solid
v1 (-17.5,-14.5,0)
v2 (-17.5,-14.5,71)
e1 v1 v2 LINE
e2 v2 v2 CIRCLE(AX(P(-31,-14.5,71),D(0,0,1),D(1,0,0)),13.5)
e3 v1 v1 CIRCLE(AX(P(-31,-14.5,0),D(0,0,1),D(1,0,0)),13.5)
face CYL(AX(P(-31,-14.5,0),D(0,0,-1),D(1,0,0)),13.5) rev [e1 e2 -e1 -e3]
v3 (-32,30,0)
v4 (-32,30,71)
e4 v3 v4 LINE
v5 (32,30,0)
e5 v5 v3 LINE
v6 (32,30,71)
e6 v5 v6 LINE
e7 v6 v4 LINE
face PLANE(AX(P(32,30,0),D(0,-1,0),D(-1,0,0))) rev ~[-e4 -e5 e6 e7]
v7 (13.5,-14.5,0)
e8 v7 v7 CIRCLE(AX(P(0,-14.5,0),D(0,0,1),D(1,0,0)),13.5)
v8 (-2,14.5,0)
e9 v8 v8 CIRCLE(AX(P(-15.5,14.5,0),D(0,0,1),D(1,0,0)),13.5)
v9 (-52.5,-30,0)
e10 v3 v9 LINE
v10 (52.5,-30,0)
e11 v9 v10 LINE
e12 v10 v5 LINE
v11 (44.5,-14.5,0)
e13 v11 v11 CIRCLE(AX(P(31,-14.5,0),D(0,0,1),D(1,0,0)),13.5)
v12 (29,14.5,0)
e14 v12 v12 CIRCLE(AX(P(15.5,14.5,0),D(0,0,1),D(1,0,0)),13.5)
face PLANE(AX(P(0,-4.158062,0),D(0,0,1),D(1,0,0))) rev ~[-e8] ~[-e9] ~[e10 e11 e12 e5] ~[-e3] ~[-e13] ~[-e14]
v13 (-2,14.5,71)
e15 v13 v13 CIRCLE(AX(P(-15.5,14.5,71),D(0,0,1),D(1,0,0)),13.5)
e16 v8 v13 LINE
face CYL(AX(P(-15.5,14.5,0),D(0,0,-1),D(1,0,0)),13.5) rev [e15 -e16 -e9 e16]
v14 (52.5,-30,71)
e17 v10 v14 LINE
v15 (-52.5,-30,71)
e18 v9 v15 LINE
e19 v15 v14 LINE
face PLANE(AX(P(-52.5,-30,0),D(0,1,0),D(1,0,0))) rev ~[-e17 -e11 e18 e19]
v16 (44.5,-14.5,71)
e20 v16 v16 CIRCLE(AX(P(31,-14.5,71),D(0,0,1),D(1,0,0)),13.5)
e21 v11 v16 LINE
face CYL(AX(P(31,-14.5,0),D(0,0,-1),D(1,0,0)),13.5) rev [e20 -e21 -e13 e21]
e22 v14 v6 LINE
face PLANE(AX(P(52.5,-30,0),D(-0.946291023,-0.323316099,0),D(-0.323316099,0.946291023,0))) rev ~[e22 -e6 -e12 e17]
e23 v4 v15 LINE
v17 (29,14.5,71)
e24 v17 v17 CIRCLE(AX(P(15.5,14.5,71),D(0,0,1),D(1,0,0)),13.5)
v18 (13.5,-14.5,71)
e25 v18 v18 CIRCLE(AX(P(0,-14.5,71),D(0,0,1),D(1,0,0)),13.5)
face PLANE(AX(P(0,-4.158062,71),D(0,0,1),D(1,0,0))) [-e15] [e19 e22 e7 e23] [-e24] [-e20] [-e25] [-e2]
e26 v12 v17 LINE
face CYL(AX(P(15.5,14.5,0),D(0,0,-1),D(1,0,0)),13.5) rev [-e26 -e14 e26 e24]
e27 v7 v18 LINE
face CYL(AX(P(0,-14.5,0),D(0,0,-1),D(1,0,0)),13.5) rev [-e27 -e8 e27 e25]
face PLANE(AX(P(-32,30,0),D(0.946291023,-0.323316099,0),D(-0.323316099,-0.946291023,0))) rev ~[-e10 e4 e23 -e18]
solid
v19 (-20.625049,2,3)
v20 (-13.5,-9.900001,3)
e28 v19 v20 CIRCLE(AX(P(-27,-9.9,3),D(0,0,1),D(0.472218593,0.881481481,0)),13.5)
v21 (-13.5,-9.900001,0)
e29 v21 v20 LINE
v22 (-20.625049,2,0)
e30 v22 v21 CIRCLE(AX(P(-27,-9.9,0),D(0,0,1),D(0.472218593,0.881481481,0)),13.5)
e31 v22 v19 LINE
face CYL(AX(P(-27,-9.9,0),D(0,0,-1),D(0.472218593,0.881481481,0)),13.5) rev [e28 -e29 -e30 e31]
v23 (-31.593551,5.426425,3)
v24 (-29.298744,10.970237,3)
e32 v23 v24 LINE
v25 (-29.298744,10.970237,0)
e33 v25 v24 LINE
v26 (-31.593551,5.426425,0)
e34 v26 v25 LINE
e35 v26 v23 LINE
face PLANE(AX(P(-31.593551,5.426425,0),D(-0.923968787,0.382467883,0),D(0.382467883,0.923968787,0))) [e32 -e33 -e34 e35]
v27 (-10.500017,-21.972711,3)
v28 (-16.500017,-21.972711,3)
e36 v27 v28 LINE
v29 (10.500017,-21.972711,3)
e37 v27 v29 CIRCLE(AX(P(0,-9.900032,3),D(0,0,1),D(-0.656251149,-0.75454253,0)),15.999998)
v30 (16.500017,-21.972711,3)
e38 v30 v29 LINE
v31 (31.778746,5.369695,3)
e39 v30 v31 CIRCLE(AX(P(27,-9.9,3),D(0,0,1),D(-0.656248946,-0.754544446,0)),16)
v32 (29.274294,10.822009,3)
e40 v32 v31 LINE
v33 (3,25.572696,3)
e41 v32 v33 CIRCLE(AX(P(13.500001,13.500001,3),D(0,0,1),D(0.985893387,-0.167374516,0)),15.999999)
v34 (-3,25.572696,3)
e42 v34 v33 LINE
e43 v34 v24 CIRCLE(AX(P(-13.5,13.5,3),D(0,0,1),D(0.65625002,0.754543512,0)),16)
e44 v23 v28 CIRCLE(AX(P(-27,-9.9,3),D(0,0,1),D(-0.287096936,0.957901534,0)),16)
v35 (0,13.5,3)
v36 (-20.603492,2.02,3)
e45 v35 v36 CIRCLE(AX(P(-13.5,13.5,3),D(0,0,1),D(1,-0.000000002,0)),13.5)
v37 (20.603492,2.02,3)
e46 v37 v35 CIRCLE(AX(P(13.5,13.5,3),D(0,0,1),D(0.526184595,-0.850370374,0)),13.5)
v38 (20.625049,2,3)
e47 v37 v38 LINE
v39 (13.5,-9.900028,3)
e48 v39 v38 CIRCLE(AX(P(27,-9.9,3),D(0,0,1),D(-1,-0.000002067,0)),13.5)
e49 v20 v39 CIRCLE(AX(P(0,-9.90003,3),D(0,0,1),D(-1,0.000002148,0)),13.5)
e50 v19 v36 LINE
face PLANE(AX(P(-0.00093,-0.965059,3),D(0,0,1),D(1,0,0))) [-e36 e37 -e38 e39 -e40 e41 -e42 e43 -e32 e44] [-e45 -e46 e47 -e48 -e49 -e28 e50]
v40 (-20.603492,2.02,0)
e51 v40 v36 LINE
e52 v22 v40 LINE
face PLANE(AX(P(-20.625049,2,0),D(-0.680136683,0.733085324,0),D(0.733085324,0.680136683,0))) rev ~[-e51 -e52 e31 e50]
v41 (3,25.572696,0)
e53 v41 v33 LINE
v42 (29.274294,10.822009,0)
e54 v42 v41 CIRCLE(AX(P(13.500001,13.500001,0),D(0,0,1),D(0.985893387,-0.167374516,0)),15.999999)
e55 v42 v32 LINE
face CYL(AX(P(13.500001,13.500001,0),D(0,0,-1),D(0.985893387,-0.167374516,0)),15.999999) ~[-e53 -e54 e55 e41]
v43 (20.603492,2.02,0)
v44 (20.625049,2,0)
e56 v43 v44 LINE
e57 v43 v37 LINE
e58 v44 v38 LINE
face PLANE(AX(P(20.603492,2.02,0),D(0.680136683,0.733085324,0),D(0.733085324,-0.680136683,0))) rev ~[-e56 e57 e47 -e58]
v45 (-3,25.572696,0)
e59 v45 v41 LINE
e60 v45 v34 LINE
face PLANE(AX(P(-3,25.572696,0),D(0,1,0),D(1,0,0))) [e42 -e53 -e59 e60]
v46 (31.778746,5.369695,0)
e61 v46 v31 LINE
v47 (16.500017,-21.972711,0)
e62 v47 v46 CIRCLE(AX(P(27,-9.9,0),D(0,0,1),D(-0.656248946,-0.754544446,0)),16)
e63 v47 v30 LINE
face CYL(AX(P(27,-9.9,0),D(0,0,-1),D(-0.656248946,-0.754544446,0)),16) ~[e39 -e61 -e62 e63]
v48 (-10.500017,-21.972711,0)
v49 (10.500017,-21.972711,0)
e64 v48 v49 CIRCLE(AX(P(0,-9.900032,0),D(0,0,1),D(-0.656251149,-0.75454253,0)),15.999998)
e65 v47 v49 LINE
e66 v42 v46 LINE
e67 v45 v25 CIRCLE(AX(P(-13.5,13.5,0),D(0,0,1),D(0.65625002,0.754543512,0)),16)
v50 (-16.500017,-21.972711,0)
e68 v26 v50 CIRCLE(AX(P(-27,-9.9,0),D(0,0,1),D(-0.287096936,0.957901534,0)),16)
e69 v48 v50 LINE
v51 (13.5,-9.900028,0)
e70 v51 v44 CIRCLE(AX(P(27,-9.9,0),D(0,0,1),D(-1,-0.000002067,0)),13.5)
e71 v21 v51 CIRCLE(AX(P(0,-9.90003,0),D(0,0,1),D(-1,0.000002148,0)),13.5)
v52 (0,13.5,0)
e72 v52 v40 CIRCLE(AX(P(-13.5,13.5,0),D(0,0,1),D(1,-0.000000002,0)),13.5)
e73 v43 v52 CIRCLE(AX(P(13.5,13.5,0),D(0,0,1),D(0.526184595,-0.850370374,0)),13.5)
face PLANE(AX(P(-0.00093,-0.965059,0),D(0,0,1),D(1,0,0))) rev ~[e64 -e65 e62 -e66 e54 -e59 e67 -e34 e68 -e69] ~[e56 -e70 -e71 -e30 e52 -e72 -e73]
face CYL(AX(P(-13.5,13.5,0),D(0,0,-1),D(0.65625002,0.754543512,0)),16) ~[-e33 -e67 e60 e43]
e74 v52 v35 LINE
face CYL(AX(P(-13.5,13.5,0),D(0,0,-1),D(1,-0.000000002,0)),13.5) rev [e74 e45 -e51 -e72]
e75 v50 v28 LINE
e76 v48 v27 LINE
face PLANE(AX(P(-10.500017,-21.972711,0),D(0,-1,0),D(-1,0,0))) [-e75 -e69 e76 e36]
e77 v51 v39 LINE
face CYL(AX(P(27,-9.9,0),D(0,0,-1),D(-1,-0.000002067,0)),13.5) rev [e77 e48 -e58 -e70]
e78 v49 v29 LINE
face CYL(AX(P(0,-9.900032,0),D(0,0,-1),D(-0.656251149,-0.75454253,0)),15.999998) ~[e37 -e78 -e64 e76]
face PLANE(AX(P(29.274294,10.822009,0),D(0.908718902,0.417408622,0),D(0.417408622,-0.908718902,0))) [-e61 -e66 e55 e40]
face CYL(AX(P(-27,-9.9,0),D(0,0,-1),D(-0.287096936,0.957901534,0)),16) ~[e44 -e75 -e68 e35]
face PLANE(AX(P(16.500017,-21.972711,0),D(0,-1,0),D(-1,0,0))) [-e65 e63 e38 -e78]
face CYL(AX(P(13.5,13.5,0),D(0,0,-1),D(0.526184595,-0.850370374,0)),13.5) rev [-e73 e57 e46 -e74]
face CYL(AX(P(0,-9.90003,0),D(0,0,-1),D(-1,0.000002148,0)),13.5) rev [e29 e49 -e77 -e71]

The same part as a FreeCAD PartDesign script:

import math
import FreeCAD as App
import Part
import Sketcher
from FreeCAD import Vector
Q = App.Units.Quantity


def add_polygon(sketch, points):
    """Adds a closed chain of lines whose ends are joined by coincident constraints."""
    first, n = sketch.GeometryCount, len(points)
    for a, b in zip(points, points[1:] + points[:1]):
        sketch.addGeometry(Part.LineSegment(App.Vector(*a, 0), App.Vector(*b, 0)), False)
    for i in range(n):
        sketch.addConstraint(Sketcher.Constraint("Coincident", first + i, 2, first + (i + 1) % n, 1))

doc = App.newDocument("Part")
body = doc.addObject("PartDesign::Body", "Body")

# Sketch on XY plane
sketch1 = body.newObject("Sketcher::SketchObject", "Sketch")
sketch1.AttachmentSupport = (doc.getObject("XY_Plane"), [""])
sketch1.MapMode = "FlatFace"
add_polygon(sketch1, [(-52, -30), (52, -30), (32, 30), (-32, 30)])  # lines 0-3
sketch1.addGeometry(Part.Circle(Vector(-31, -14, 0), Vector(0, 0, 1), 14), False)  # 4
sketch1.addGeometry(Part.Circle(Vector(0, -14, 0), Vector(0, 0, 1), 14), False)  # 5
sketch1.addGeometry(Part.Circle(Vector(31, -14, 0), Vector(0, 0, 1), 14), False)  # 6
sketch1.addGeometry(Part.Circle(Vector(-16, 14, 0), Vector(0, 0, 1), 14), False)  # 7
sketch1.addGeometry(Part.Circle(Vector(16, 14, 0), Vector(0, 0, 1), 14), False)  # 8
sketch1.addConstraint([
    Sketcher.Constraint("Horizontal", 0),
    Sketcher.Constraint("Horizontal", 2),
    Sketcher.Constraint("Equal", 4, 5),
    Sketcher.Constraint("Equal", 5, 6),
    Sketcher.Constraint("Equal", 6, 7),
    Sketcher.Constraint("Equal", 7, 8),
    Sketcher.Constraint("Symmetric", 4, 3, 6, 3, -2),
    Sketcher.Constraint("Symmetric", 7, 3, 8, 3, -2),
    Sketcher.Constraint("PointOnObject", 5, 3, -2),
    Sketcher.Constraint("Horizontal", 4, 3, 5, 3),
    Sketcher.Constraint("Equal", 1, 3),
    Sketcher.Constraint("Diameter", 4, Q("27 mm")),
    Sketcher.Constraint("DistanceX", 0, 1, 0, 2, Q("105 mm")),
    Sketcher.Constraint("DistanceX", 2, 2, 2, 1, Q("64 mm")),
    Sketcher.Constraint("DistanceX", 4, 3, -1, 1, Q("31 mm")),
    Sketcher.Constraint("DistanceY", 0, 2, -1, 1, Q("30 mm")),
    Sketcher.Constraint("DistanceX", -1, 1, 1, 2, Q("32 mm")),
    Sketcher.Constraint("DistanceY", -1, 1, 1, 2, Q("30 mm")),
    Sketcher.Constraint("DistanceY", 4, 3, 7, 3, Q("29 mm")),
    Sketcher.Constraint("DistanceX", 7, 3, 8, 3, Q("31 mm")),
    Sketcher.Constraint("DistanceY", 4, 3, -1, 1, Q("14.5 mm")),
])
pad1 = body.newObject("PartDesign::Pad", "Pad")
pad1.Profile = sketch1
pad1.Length = 71
body2 = doc.addObject("PartDesign::Body", "Body001")

# Sketch on XY plane
sketch2 = body2.newObject("Sketcher::SketchObject", "Sketch001")
sketch2.AttachmentSupport = (doc.getObject("XY_Plane001"), [""])
sketch2.MapMode = "FlatFace"
sketch2.addGeometry([
    Part.ArcOfCircle(Part.Circle(Vector(-27, -9.9, 0), Vector(0, 0, 1), 16), math.radians(106.684233), math.radians(311.014419)),  # 0
    Part.LineSegment(Vector(-16.500017, -21.972711, 0), Vector(-10.500017, -21.972711, 0)),  # 1
    Part.ArcOfCircle(Part.Circle(Vector(0, -9.900032, 0), Vector(0, 0, 1), 15.999998), math.radians(-131.014587), math.radians(-48.985413)),  # 2
    Part.LineSegment(Vector(10.500017, -21.972711, 0), Vector(16.500017, -21.972711, 0)),  # 3
    Part.ArcOfCircle(Part.Circle(Vector(27, -9.9, 0), Vector(0, 0, 1), 16), math.radians(-131.01442), math.radians(72.622165)),  # 4
    Part.LineSegment(Vector(31.778746, 5.369695, 0), Vector(29.274294, 10.822009, 0)),  # 5
    Part.ArcOfCircle(Part.Circle(Vector(13.500001, 13.500001, 0), Vector(0, 0, 1), 15.999999), math.radians(-9.635203), math.radians(131.014505)),  # 6
    Part.LineSegment(Vector(3, 25.572696, 0), Vector(-3, 25.572696, 0)),  # 7
    Part.ArcOfCircle(Part.Circle(Vector(-13.5, 13.5, 0), Vector(0, 0, 1), 16), math.radians(48.985499), math.radians(189.097221)),  # 8
    Part.LineSegment(Vector(-29.298744, 10.970237, 0), Vector(-31.593551, 5.426425, 0)),  # 9
    Part.ArcOfCircle(Part.Circle(Vector(-27, -9.9, 0), Vector(0, 0, 1), 13.5), math.radians(61.821593), math.radians(359.999996)),  # 10
    Part.LineSegment(Vector(-20.625049, 2, 0), Vector(-20.603492, 2.02, 0)),  # 11
    Part.ArcOfCircle(Part.Circle(Vector(-13.5, 13.5, 0), Vector(0, 0, 1), 13.5), math.radians(0), math.radians(238.251976)),  # 12
    Part.ArcOfCircle(Part.Circle(Vector(13.5, 13.5, 0), Vector(0, 0, 1), 13.5), math.radians(-58.251976), math.radians(180)),  # 13
    Part.LineSegment(Vector(20.603492, 2.02, 0), Vector(20.625049, 2, 0)),  # 14
    Part.ArcOfCircle(Part.Circle(Vector(27, -9.9, 0), Vector(0, 0, 1), 13.5), math.radians(-179.999882), math.radians(118.178407)),  # 15
    Part.ArcOfCircle(Part.Circle(Vector(0, -9.90003, 0), Vector(0, 0, 1), 13.5), math.radians(179.999877), math.radians(360.000008)),  # 16
], False)
sketch2.addConstraint([
    Sketcher.Constraint("Coincident", 0, 2, 1, 1),
    Sketcher.Constraint("Coincident", 1, 2, 2, 1),
    Sketcher.Constraint("Coincident", 2, 2, 3, 1),
    Sketcher.Constraint("Coincident", 3, 2, 4, 1),
    Sketcher.Constraint("Coincident", 4, 2, 5, 1),
    Sketcher.Constraint("Coincident", 5, 2, 6, 1),
    Sketcher.Constraint("Coincident", 6, 2, 7, 1),
    Sketcher.Constraint("Coincident", 7, 2, 8, 1),
    Sketcher.Constraint("Coincident", 8, 2, 9, 1),
    Sketcher.Constraint("Coincident", 9, 2, 0, 1),
    Sketcher.Constraint("Coincident", 10, 1, 11, 1),
    Sketcher.Constraint("Coincident", 11, 2, 12, 2),
    Sketcher.Constraint("Coincident", 12, 1, 13, 2),
    Sketcher.Constraint("Coincident", 13, 1, 14, 1),
    Sketcher.Constraint("Coincident", 14, 2, 15, 2),
    Sketcher.Constraint("Coincident", 15, 1, 16, 2),
    Sketcher.Constraint("Coincident", 16, 1, 10, 2),
    Sketcher.Constraint("Horizontal", 1),
    Sketcher.Constraint("Horizontal", 3),
    Sketcher.Constraint("Horizontal", 7),
    Sketcher.Constraint("Coincident", 10, 3, 0, 3),
    Sketcher.Constraint("Coincident", 12, 3, 8, 3),
    Sketcher.Constraint("Coincident", 13, 3, 6, 3),
    Sketcher.Constraint("Coincident", 15, 3, 4, 3),
    Sketcher.Constraint("Coincident", 16, 3, 2, 3),
    Sketcher.Constraint("PointOnObject", 2, 3, -2),
    Sketcher.Constraint("PointOnObject", 12, 1, -2),
    Sketcher.Constraint("Radius", 0, Q("16 mm")),
    Sketcher.Constraint("Radius", 4, Q("16 mm")),
    Sketcher.Constraint("Radius", 6, Q("15.999999 mm")),
    Sketcher.Constraint("Radius", 8, Q("16 mm")),
    Sketcher.Constraint("Radius", 10, Q("13.5 mm")),
    Sketcher.Constraint("Radius", 12, Q("13.5 mm")),
    Sketcher.Constraint("Radius", 13, Q("13.5 mm")),
    Sketcher.Constraint("Radius", 15, Q("13.5 mm")),
    Sketcher.Constraint("Radius", 16, Q("13.5 mm")),
    Sketcher.Constraint("DistanceX", 1, 1, 1, 2, Q("6 mm")),
    Sketcher.Constraint("DistanceX", 3, 1, 3, 2, Q("6 mm")),
    Sketcher.Constraint("DistanceX", 7, 2, 7, 1, Q("6 mm")),
    Sketcher.Constraint("Distance", 5, Q("6.000001 mm")),
    Sketcher.Constraint("Distance", 9, Q("5.999999 mm")),
    Sketcher.Constraint("DistanceX", -1, 1, 6, 2, Q("3 mm")),
    Sketcher.Constraint("DistanceY", -1, 1, 10, 1, Q("2 mm")),
    Sketcher.Constraint("DistanceY", -1, 1, 14, 2, Q("2 mm")),
    Sketcher.Constraint("DistanceY", 0, 3, -1, 1, Q("9.9 mm")),
    Sketcher.Constraint("DistanceY", 4, 3, -1, 1, Q("9.9 mm")),
    Sketcher.Constraint("DistanceY", -1, 1, 6, 3, Q("13.500001 mm")),
    Sketcher.Constraint("DistanceY", -1, 1, 12, 1, Q("13.5 mm")),
    Sketcher.Constraint("DistanceY", 16, 1, -1, 1, Q("9.900001 mm")),
    Sketcher.Constraint("DistanceY", -1, 1, 11, 2, Q("2.02 mm")),
    Sketcher.Constraint("DistanceY", -1, 1, 13, 1, Q("2.02 mm")),
    Sketcher.Constraint("Radius", 2, Q("15.999998 mm")),
    Sketcher.Constraint("DistanceY", 16, 3, -1, 1, Q("9.90003 mm")),
    Sketcher.Constraint("DistanceY", -1, 1, 5, 2, Q("10.822009 mm")),
    Sketcher.Constraint("DistanceX", 9, 2, -1, 1, Q("31.593551 mm")),
    Sketcher.Constraint("DistanceY", 15, 1, -1, 1, Q("9.900028 mm")),
])
pad2 = body2.newObject("PartDesign::Pad", "Pad001")
pad2.Profile = sketch2
pad2.Length = 3

doc.recompute()
